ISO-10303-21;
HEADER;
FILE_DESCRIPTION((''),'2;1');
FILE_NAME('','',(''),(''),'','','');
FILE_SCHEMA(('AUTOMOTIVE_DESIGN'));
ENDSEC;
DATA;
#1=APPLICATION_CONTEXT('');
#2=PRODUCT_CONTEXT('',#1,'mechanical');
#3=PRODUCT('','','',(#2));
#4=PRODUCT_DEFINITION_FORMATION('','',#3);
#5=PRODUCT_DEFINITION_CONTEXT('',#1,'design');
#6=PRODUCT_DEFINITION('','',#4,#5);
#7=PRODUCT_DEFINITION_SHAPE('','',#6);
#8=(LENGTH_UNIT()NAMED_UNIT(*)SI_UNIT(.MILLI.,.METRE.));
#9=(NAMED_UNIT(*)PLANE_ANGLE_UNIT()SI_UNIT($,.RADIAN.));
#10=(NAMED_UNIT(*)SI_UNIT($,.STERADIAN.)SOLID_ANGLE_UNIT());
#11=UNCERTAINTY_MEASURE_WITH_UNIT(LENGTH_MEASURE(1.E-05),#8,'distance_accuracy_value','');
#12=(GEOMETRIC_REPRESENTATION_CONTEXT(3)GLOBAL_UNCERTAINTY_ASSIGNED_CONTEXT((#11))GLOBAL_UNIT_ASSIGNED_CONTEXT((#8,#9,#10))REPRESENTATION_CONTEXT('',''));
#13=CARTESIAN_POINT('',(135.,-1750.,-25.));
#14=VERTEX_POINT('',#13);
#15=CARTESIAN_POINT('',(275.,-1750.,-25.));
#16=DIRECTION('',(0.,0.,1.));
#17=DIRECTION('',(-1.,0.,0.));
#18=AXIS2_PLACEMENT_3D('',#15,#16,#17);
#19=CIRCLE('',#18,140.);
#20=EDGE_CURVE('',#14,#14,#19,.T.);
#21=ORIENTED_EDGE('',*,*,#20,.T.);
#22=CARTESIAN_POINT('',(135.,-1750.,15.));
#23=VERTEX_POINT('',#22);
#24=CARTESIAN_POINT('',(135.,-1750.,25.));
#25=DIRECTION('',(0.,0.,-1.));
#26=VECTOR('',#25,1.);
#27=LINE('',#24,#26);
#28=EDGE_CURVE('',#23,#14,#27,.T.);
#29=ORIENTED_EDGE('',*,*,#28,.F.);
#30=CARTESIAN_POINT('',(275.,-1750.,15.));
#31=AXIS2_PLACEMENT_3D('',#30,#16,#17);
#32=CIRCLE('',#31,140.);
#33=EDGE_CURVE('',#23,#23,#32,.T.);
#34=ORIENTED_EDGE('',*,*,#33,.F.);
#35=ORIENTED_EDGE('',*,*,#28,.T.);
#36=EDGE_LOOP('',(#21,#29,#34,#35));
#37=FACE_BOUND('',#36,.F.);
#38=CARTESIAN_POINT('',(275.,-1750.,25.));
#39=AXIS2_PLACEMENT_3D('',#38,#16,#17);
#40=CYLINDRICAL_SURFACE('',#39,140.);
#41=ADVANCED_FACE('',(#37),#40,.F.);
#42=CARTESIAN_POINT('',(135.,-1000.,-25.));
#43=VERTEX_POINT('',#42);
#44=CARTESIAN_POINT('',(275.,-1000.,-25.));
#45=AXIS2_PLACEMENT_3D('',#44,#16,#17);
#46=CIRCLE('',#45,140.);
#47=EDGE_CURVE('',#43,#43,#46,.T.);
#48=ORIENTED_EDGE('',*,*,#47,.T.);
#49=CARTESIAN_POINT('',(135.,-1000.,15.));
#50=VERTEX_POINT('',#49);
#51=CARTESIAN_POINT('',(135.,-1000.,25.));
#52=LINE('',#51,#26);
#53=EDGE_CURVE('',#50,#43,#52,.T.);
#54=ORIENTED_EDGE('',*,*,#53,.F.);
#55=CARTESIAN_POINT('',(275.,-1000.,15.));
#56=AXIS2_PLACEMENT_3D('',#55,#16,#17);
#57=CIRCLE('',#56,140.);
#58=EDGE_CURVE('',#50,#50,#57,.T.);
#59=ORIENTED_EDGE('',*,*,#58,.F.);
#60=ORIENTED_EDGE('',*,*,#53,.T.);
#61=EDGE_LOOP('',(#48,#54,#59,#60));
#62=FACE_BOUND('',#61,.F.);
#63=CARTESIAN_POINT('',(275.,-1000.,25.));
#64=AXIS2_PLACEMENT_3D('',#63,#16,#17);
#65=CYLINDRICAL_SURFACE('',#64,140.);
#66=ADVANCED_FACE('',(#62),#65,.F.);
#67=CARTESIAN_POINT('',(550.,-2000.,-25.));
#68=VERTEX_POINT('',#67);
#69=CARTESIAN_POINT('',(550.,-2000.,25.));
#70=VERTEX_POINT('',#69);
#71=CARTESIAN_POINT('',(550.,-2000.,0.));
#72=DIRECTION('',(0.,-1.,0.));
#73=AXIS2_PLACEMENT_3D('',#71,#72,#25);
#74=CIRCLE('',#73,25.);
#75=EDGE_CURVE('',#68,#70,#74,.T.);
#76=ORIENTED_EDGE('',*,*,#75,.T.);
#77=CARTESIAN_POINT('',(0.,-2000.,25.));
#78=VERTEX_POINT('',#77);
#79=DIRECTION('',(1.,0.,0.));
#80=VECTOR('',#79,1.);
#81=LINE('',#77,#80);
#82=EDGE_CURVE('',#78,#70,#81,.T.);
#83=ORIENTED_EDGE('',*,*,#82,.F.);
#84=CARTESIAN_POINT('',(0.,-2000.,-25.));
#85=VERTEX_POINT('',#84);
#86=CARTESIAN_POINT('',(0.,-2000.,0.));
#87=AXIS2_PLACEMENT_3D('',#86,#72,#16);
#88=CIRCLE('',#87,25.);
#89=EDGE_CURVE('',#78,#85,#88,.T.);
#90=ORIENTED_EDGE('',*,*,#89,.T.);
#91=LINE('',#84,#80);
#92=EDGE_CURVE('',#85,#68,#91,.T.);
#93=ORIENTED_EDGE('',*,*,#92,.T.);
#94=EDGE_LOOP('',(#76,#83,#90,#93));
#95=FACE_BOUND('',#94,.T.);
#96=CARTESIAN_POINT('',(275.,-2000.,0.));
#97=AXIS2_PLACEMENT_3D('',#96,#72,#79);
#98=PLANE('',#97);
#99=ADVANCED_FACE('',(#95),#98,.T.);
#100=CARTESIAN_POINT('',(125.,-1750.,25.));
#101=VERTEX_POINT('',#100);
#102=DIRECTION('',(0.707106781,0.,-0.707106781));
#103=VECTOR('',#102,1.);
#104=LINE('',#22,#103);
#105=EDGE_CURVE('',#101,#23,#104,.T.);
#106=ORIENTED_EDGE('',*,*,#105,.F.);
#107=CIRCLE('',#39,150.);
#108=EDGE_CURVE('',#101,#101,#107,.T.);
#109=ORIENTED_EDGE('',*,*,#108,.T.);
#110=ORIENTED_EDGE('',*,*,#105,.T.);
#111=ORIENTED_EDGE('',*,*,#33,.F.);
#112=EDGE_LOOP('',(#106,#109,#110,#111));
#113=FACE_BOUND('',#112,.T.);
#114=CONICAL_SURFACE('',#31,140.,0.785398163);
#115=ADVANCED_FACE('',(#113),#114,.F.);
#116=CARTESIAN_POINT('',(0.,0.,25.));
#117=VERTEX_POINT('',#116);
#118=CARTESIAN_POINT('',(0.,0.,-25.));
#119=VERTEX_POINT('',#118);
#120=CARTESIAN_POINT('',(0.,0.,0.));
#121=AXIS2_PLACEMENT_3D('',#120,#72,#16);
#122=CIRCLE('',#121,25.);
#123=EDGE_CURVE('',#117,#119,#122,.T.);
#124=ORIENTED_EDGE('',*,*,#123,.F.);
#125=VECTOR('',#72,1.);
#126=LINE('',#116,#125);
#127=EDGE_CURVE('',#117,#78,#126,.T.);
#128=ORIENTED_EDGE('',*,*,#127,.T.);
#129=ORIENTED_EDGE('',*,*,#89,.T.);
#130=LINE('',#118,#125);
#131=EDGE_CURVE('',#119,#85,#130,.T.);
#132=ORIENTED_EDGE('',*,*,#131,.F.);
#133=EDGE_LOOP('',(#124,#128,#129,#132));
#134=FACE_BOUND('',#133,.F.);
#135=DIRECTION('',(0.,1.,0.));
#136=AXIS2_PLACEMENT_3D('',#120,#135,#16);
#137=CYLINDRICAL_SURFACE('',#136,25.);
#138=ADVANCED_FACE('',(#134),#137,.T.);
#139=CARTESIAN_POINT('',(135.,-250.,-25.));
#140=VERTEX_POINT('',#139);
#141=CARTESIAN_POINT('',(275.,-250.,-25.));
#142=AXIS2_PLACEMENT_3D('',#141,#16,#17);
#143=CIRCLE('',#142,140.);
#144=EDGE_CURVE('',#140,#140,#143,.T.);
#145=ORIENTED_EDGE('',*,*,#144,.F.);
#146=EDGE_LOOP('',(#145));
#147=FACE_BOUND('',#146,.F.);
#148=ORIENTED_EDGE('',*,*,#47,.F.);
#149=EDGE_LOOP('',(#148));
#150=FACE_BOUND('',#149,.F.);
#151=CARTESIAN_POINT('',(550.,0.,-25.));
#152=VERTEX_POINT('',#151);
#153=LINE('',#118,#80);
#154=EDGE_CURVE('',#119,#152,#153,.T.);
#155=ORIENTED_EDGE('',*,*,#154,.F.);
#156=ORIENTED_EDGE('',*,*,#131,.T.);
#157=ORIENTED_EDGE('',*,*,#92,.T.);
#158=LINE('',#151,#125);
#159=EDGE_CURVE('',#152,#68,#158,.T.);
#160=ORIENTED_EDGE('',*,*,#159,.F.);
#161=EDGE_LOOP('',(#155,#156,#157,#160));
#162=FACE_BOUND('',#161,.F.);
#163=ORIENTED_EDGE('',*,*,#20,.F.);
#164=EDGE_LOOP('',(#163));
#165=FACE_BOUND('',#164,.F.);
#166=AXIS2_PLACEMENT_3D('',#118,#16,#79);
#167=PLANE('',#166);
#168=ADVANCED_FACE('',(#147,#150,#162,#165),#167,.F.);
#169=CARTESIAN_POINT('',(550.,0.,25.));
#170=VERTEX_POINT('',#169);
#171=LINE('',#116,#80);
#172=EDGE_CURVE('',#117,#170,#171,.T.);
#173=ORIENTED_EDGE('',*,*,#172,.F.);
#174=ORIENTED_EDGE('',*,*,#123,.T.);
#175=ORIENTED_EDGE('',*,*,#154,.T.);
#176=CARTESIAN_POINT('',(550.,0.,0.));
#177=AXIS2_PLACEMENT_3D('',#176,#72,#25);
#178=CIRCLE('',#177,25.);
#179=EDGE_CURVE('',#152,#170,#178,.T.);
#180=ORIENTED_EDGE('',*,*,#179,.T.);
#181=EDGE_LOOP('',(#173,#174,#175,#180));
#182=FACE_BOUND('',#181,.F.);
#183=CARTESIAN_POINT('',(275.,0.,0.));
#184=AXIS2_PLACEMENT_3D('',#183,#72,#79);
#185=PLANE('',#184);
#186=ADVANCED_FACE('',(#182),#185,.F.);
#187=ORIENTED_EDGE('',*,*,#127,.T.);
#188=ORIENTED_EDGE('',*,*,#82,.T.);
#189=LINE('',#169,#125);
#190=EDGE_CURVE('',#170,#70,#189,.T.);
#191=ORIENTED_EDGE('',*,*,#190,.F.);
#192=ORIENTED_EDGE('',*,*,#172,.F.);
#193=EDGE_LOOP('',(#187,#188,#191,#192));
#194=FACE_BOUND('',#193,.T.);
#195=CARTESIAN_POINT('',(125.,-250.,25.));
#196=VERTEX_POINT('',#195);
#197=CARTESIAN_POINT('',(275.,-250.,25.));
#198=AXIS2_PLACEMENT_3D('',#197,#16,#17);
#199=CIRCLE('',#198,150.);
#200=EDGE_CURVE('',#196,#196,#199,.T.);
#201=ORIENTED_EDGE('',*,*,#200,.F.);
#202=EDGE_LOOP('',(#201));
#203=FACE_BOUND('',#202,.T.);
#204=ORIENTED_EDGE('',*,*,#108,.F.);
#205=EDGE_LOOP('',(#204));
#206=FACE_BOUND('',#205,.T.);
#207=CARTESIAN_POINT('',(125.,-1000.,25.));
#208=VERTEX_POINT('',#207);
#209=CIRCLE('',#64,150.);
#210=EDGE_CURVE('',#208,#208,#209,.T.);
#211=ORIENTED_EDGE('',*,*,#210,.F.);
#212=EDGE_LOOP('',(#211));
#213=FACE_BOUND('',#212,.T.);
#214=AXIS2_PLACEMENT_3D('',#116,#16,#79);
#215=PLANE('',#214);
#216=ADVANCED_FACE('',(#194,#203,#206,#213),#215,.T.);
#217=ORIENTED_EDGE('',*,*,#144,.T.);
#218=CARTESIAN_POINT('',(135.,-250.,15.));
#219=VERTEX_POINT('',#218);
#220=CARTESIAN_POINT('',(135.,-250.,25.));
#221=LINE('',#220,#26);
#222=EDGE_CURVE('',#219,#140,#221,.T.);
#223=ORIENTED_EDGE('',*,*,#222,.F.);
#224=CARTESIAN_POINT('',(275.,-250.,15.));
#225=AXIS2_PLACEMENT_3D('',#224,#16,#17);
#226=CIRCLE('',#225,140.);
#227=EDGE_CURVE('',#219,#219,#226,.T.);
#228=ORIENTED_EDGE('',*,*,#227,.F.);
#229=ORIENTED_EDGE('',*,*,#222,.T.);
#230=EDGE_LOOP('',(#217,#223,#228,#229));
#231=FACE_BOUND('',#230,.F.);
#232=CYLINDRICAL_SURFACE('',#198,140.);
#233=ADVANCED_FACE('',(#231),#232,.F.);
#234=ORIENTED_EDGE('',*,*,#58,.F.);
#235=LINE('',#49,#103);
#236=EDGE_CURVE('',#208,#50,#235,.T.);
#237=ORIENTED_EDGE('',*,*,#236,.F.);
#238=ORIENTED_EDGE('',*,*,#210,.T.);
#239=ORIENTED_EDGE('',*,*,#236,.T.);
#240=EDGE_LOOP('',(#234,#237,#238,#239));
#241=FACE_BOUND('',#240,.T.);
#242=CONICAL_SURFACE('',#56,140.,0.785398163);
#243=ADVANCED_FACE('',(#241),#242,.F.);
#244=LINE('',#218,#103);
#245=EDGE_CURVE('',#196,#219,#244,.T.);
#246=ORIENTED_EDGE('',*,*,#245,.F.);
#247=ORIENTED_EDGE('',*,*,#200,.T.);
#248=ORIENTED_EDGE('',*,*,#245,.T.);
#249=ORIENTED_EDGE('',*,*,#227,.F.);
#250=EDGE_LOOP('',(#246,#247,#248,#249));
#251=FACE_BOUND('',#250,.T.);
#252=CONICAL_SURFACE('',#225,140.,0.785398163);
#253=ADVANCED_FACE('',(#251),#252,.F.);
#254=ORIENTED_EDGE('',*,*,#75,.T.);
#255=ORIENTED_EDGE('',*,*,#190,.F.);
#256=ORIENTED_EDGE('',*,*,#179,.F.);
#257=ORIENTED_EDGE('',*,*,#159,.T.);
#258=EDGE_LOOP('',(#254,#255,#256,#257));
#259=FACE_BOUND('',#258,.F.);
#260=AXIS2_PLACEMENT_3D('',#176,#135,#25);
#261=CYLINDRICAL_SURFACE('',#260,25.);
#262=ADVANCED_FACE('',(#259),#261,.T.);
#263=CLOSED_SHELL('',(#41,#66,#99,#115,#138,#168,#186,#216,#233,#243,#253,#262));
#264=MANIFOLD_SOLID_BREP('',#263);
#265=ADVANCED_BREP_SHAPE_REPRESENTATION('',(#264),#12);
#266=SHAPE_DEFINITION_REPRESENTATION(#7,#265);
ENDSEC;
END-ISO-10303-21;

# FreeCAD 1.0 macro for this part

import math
import FreeCAD as App
import Part
import Sketcher
Q = App.Units.Quantity


def edges_at(feature, points):
    """Names of the edges that pass closest to the given points."""
    edges = feature.Shape.Edges
    near = lambda p: min(range(len(edges)), key=lambda i: edges[i].distToShape(Part.Vertex(*p))[0])
    return sorted({f"Edge{near(p) + 1}" for p in points})

doc = App.newDocument("Part")
body = doc.addObject("PartDesign::Body", "Body")

# Sketch on XZ plane
sketch1 = body.newObject("Sketcher::SketchObject", "Sketch")
sketch1.AttachmentSupport = (doc.getObject("XZ_Plane"), [""])
sketch1.MapMode = "FlatFace"
sketch1.addGeometry([
    Part.ArcOfCircle(Part.Circle(App.Vector(0, 0, 0), App.Vector(0, 0, 1), 25), math.radians(90), math.radians(270)),
    Part.LineSegment(App.Vector(0, -25, 0), App.Vector(550, -25, 0)),
    Part.ArcOfCircle(Part.Circle(App.Vector(550, 0, 0), App.Vector(0, 0, 1), 25), math.radians(-90), math.radians(90)),
    Part.LineSegment(App.Vector(550, 25, 0), App.Vector(0, 25, 0)),
], False)
sketch1.addConstraint([
    Sketcher.Constraint("Tangent", 0, 2, 1, 1),
    Sketcher.Constraint("Tangent", 1, 2, 2, 1),
    Sketcher.Constraint("Tangent", 2, 2, 3, 1),
    Sketcher.Constraint("Tangent", 3, 2, 0, 1),
    Sketcher.Constraint("Horizontal", 1),
    Sketcher.Constraint("Horizontal", 3),
    Sketcher.Constraint("Coincident", 0, 3, -1, 1),
    Sketcher.Constraint("Radius", 0, Q("25 mm")),
    Sketcher.Constraint("DistanceX", 1, 1, 1, 2, Q("550 mm")),
])
pad1 = body.newObject("PartDesign::Pad", "Pad")
pad1.Profile = sketch1
pad1.Length = 2000

# Sketch on XY plane
sketch2 = body.newObject("Sketcher::SketchObject", "Sketch001")
sketch2.AttachmentSupport = (doc.getObject("XY_Plane"), [""])
sketch2.MapMode = "FlatFace"
sketch2.AttachmentOffset = App.Placement(App.Vector(0, 0, 25), App.Rotation())
sketch2.addGeometry([
    Part.Circle(App.Vector(275, -1750, 0), App.Vector(0, 0, 1), 140),
    Part.Circle(App.Vector(275, -1000, 0), App.Vector(0, 0, 1), 140),
    Part.Circle(App.Vector(275, -250, 0), App.Vector(0, 0, 1), 140),
], False)
sketch2.addConstraint([
    Sketcher.Constraint("Equal", 0, 1),
    Sketcher.Constraint("Equal", 1, 2),
    Sketcher.Constraint("Vertical", 0, 3, 1, 3),
    Sketcher.Constraint("Vertical", 1, 3, 2, 3),
    Sketcher.Constraint("Diameter", 0, Q("280 mm")),
    Sketcher.Constraint("DistanceX", -1, 1, 0, 3, Q("275 mm")),
    Sketcher.Constraint("DistanceY", 0, 3, -1, 1, Q("1750 mm")),
    Sketcher.Constraint("DistanceY", 1, 3, -1, 1, Q("1000 mm")),
    Sketcher.Constraint("DistanceY", 2, 3, -1, 1, Q("250 mm")),
])
pocket1 = body.newObject("PartDesign::Pocket", "Pocket")
pocket1.Profile = sketch2
pocket1.Type = "ThroughAll"
doc.recompute()

chamfer = body.newObject("PartDesign::Chamfer", "Chamfer")
chamfer.Base = (pocket1, edges_at(pocket1, [(415, -1750, 25), (415, -1000, 25), (415, -250, 25)]))
chamfer.Size = 10

doc.recompute()
